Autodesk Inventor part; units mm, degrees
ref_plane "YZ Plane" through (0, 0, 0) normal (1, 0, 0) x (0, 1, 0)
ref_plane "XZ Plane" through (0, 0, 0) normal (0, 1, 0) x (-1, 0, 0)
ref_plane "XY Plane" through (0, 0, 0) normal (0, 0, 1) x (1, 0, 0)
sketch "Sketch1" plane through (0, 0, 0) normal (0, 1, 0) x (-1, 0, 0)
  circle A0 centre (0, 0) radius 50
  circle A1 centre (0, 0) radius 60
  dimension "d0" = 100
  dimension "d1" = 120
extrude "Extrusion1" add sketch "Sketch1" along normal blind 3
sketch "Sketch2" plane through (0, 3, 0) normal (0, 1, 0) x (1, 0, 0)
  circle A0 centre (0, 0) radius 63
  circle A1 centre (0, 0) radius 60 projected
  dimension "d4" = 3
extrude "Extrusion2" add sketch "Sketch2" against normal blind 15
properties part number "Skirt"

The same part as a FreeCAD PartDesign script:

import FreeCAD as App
import Part
import Sketcher
from FreeCAD import Vector
Q = App.Units.Quantity

doc = App.newDocument("Part")
body = doc.addObject("PartDesign::Body", "Body")

sketch1 = doc.addObject("Sketcher::SketchObject", "Sketch")
body.addObject(sketch1)
sketch1.AttachmentSupport = (doc.XZ_Plane, [""])
sketch1.MapMode = "FlatFace"
sketch1.addGeometry([
    Part.Circle(Vector(0, 0, 0), Vector(0, 0, 1), 60),
    Part.Circle(Vector(0, 0, 0), Vector(0, 0, 1), 50),
], False)
sketch1.addConstraint([
    Sketcher.Constraint("Coincident", 0, 3, -1, 1),
    Sketcher.Constraint("Coincident", 1, 3, -1, 1),
    Sketcher.Constraint("Diameter", 0, Q("120 mm")),
    Sketcher.Constraint("Diameter", 1, Q("100 mm")),
])
pad1 = doc.addObject("PartDesign::Pad", "Pad")
body.addObject(pad1)
pad1.Profile = sketch1
pad1.Length = 3
pad1.Reversed = True

sketch2 = doc.addObject("Sketcher::SketchObject", "Sketch001")
body.addObject(sketch2)
sketch2.AttachmentSupport = (doc.XZ_Plane, [""])
sketch2.MapMode = "FlatFace"
sketch2.AttachmentOffset = App.Placement(Vector(0, 0, -3), App.Rotation())
sketch2.addGeometry([
    Part.Circle(Vector(0, 0, 0), Vector(0, 0, 1), 63),
    Part.Circle(Vector(0, 0, 0), Vector(0, 0, 1), 60),
], False)
sketch2.addConstraint([
    Sketcher.Constraint("Coincident", 0, 3, -1, 1),
    Sketcher.Constraint("Coincident", 1, 3, -1, 1),
    Sketcher.Constraint("Diameter", 0, Q("126 mm")),
    Sketcher.Constraint("Diameter", 1, Q("120 mm")),
])
pad2 = doc.addObject("PartDesign::Pad", "Pad001")
body.addObject(pad2)
pad2.Profile = sketch2
pad2.Length = 15

doc.recompute()
